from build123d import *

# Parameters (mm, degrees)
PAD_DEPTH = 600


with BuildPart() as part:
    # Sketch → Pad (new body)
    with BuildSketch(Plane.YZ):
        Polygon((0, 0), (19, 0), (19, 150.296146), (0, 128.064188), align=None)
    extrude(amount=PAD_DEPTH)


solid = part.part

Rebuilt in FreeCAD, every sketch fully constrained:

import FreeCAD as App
import Part
import Sketcher


def add_polygon(sketch, points):
    """Adds a closed chain of lines whose ends are joined by coincident constraints."""
    first, n = sketch.GeometryCount, len(points)
    for a, b in zip(points, points[1:] + points[:1]):
        sketch.addGeometry(Part.LineSegment(App.Vector(*a, 0), App.Vector(*b, 0)), False)
    for i in range(n):
        sketch.addConstraint(Sketcher.Constraint("Coincident", first + i, 2, first + (i + 1) % n, 1))

doc = App.newDocument("Part")
params = doc.addObject("Spreadsheet::Sheet", "Params")
for row, (alias, value) in enumerate([
    ("sketch1_width", "19 mm"),
    ("pad1_length", "600 mm"),
], start=1):
    params.set(f"A{row}", alias)
    params.set(f"B{row}", "=" + value)
    params.setAlias(f"B{row}", alias)

body = doc.addObject("PartDesign::Body", "Body")

# Sketch on YZ plane
sketch1 = doc.addObject("Sketcher::SketchObject", "Sketch")
body.addObject(sketch1)
sketch1.AttachmentSupport = (doc.YZ_Plane, [""])
sketch1.MapMode = "FlatFace"
add_polygon(sketch1, [(0, 0), (19, 0), (19, 150), (0, 128)])  # lines 0-3
sketch1.addConstraint(Sketcher.Constraint("Horizontal", 0))
sketch1.addConstraint(Sketcher.Constraint("Vertical", 1))
sketch1.addConstraint(Sketcher.Constraint("Vertical", 3))
sketch1.addConstraint(Sketcher.Constraint("Coincident", 3, 2, -1, 1))
sketch1.addConstraint(Sketcher.Constraint("DistanceX", 0, 1, 0, 2, 19.0))
sketch1.addConstraint(Sketcher.Constraint("DistanceY", 3, 2, 3, 1, 128.064188))
sketch1.addConstraint(Sketcher.Constraint("DistanceY", 1, 1, 1, 2, 150.296146))
sketch1.setExpression("Constraints[8]", "Params.sketch1_width")
pad1 = doc.addObject("PartDesign::Pad", "Pad")
body.addObject(pad1)
pad1.Profile = sketch1
pad1.setExpression("Length", "Params.pad1_length")

doc.recompute()
